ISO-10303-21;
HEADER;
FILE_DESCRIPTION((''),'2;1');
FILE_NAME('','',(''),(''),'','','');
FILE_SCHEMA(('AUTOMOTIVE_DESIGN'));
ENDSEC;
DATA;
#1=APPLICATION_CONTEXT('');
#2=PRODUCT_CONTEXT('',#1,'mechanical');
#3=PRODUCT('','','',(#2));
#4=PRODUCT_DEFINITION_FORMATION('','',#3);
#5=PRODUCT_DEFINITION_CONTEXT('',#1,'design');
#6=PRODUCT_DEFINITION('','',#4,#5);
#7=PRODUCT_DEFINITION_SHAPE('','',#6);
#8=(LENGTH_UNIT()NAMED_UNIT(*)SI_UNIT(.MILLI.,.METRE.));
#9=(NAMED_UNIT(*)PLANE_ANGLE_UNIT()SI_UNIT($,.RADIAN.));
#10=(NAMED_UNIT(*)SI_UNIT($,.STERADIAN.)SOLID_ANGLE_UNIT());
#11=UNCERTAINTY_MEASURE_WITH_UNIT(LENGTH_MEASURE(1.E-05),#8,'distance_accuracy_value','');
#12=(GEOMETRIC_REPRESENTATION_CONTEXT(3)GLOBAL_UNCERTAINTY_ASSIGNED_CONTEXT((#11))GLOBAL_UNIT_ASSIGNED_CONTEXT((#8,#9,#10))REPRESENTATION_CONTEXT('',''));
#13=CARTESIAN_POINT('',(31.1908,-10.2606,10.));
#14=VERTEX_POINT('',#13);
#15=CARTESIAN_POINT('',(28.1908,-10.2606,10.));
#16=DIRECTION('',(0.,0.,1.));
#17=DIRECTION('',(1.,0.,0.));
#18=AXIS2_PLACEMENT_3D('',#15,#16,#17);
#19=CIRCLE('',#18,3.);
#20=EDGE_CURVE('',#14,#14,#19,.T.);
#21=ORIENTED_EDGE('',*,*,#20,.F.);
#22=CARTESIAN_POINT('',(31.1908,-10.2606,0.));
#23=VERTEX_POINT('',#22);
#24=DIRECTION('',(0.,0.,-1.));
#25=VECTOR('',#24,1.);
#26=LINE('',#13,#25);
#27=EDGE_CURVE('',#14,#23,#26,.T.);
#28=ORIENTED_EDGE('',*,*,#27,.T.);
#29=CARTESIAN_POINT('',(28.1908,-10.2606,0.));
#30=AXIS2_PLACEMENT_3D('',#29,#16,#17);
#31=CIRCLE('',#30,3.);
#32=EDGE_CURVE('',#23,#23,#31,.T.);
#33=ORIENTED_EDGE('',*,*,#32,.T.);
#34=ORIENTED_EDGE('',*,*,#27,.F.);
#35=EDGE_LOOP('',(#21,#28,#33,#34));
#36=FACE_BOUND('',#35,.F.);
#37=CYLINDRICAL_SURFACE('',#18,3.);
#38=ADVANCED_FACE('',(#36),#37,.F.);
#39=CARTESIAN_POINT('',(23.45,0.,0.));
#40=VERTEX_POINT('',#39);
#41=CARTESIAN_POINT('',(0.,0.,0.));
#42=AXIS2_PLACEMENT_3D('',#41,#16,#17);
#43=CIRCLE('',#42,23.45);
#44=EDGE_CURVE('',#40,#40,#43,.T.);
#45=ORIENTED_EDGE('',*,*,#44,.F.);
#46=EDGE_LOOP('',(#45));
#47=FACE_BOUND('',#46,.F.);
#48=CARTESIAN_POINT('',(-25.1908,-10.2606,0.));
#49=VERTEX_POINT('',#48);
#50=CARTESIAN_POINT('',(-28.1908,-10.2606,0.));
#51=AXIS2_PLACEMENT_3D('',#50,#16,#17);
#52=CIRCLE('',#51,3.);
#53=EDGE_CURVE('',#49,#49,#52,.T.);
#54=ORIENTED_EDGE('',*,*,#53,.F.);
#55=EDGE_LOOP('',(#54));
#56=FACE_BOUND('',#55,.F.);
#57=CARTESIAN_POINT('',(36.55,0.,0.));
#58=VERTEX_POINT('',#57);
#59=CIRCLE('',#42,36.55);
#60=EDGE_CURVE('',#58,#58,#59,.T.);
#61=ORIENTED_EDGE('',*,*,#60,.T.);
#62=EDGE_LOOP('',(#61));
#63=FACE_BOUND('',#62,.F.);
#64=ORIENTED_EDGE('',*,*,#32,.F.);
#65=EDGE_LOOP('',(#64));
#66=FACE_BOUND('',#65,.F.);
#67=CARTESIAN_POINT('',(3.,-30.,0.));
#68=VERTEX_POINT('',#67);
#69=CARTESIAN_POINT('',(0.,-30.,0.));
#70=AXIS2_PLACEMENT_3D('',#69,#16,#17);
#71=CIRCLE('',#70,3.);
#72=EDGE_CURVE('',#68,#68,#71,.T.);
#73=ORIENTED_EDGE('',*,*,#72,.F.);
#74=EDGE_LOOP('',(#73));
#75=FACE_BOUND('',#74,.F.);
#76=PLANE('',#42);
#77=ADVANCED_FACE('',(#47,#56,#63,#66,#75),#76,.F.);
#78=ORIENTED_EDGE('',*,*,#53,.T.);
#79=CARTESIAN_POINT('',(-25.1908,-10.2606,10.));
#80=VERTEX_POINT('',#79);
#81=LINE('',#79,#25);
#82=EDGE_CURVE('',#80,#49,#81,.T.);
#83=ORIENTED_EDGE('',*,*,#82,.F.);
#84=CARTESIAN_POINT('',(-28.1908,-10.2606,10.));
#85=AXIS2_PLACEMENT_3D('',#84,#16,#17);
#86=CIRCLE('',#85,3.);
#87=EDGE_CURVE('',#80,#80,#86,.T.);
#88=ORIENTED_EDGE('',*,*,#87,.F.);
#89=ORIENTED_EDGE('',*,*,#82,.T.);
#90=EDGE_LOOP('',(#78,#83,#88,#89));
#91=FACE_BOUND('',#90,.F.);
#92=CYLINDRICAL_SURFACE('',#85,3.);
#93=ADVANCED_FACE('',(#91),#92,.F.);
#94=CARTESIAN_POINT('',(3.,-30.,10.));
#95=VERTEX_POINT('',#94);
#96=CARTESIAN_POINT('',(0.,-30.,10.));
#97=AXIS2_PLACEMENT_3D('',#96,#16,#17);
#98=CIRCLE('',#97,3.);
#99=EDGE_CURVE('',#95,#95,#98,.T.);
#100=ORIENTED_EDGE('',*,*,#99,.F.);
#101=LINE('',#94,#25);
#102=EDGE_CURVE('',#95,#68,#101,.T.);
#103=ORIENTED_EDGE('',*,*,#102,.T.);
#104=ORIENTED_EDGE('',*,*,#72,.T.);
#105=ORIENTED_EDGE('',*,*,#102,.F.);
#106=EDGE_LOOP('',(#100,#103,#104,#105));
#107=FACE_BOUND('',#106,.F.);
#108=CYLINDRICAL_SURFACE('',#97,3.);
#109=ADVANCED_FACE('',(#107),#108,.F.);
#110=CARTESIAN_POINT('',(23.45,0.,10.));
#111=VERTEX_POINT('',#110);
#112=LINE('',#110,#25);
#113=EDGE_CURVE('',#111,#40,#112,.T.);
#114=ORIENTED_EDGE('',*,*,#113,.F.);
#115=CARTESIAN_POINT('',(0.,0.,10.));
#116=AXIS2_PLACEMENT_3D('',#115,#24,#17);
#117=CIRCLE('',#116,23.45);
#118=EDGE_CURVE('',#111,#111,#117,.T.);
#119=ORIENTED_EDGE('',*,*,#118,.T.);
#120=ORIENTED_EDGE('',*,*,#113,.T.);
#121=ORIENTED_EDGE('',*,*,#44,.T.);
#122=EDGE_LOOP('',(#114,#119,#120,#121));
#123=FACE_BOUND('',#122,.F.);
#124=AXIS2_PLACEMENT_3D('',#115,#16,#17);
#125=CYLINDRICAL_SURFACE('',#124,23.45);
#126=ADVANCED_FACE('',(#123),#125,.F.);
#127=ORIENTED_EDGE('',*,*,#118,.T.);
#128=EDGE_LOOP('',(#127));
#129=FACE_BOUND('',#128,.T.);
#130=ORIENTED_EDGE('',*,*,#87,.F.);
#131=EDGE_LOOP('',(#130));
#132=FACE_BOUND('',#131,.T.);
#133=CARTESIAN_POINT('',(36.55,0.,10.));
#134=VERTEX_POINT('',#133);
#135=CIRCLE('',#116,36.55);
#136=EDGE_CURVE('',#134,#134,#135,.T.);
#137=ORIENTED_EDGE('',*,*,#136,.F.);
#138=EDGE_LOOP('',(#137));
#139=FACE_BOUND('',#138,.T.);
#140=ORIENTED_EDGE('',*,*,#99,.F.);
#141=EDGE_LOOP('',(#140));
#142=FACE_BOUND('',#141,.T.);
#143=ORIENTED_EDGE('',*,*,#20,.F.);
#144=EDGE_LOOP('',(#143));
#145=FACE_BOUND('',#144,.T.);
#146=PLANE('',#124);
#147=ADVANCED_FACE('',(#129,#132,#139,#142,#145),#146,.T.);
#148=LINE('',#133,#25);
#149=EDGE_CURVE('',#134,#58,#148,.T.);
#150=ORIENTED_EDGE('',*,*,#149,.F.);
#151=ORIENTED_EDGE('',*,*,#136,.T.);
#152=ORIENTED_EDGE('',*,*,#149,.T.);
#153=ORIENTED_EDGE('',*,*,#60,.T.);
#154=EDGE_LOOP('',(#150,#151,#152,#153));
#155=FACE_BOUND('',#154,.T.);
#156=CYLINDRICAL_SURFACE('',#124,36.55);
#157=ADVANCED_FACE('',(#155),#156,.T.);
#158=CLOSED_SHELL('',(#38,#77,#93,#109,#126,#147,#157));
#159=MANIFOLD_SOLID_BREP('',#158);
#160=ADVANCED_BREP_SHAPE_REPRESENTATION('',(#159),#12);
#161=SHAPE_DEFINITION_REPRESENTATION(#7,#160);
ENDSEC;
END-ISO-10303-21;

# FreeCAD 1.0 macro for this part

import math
import FreeCAD as App
import Part
import Sketcher


def edges_at(feature, points):
    """Names of the edges that pass closest to the given points."""
    edges = feature.Shape.Edges
    near = lambda p: min(range(len(edges)), key=lambda i: edges[i].distToShape(Part.Vertex(*p))[0])
    return sorted({f"Edge{near(p) + 1}" for p in points})

doc = App.newDocument("Part")
body = doc.addObject("PartDesign::Body", "Body")

# Sketch on XY plane
sketch1 = body.newObject("Sketcher::SketchObject", "Sketch")
sketch1.AttachmentSupport = (doc.getObject("XY_Plane"), [""])
sketch1.MapMode = "FlatFace"
sketch1.addGeometry(Part.ArcOfCircle(Part.Circle(App.Vector(0, 0, 0), App.Vector(0, 0, 1), 23.45), math.radians(180), math.radians(360)), False)
sketch1.addGeometry(Part.LineSegment(App.Vector(-23.45, 0, 0), App.Vector(-36.55, 0, 0)), False)
sketch1.addGeometry(Part.ArcOfCircle(Part.Circle(App.Vector(0, 0, 0), App.Vector(0, 0, 1), 36.55), math.radians(180), math.radians(360)), False)
sketch1.addGeometry(Part.LineSegment(App.Vector(36.55, 0, 0), App.Vector(23.45, 0, 0)), False)
sketch1.addGeometry(Part.Circle(App.Vector(0, -30, 0), App.Vector(0, 0, 1), 2.55), False)
sketch1.addGeometry(Part.Circle(App.Vector(-28.1908, -10.2606, 0), App.Vector(0, 0, 1), 2.55), False)
sketch1.addGeometry(Part.Circle(App.Vector(28.1908, -10.2606, 0), App.Vector(0, 0, 1), 2.55), False)
sketch1.addConstraint(Sketcher.Constraint("Coincident", 0, 1, 1, 1))
sketch1.addConstraint(Sketcher.Constraint("Coincident", 1, 2, 2, 1))
sketch1.addConstraint(Sketcher.Constraint("Coincident", 2, 2, 3, 1))
sketch1.addConstraint(Sketcher.Constraint("Coincident", 3, 2, 0, 2))
sketch1.addConstraint(Sketcher.Constraint("Horizontal", 1))
sketch1.addConstraint(Sketcher.Constraint("Horizontal", 3))
sketch1.addConstraint(Sketcher.Constraint("Coincident", 0, 3, -1, 1))
sketch1.addConstraint(Sketcher.Constraint("Coincident", 2, 3, -1, 1))
sketch1.addConstraint(Sketcher.Constraint("Equal", 4, 5))
sketch1.addConstraint(Sketcher.Constraint("Equal", 5, 6))
sketch1.addConstraint(Sketcher.Constraint("Symmetric", 5, 3, 6, 3, -2))
sketch1.addConstraint(Sketcher.Constraint("PointOnObject", 4, 3, -2))
sketch1.addConstraint(Sketcher.Constraint("PointOnObject", 0, 1, -1))
sketch1.addConstraint(Sketcher.Constraint("PointOnObject", 2, 2, -1))
sketch1.addConstraint(Sketcher.Constraint("Diameter", 4, 5.1))
sketch1.addConstraint(Sketcher.Constraint("Radius", 0, 23.45))
sketch1.addConstraint(Sketcher.Constraint("Radius", 2, 36.55))
sketch1.addConstraint(Sketcher.Constraint("DistanceY", 4, 3, -1, 1, 30.0))
sketch1.addConstraint(Sketcher.Constraint("DistanceX", 5, 3, -1, 1, 28.1908))
sketch1.addConstraint(Sketcher.Constraint("DistanceY", 5, 3, -1, 1, 10.2606))
pad1 = body.newObject("PartDesign::Pad", "Pad")
pad1.Profile = sketch1
pad1.Length = 10
doc.recompute()

fillet = body.newObject("PartDesign::Fillet", "Fillet")
fillet.Base = (pad1, edges_at(pad1, [
    (36.55, 0, 5),
    (23.45, 0, 5),
    (-23.45, 0, 5),
    (-36.55, 0, 5),
]))
fillet.Radius = 2

# Sketch on XY plane
sketch2 = body.newObject("Sketcher::SketchObject", "Sketch001")
sketch2.AttachmentSupport = (doc.getObject("XY_Plane"), [""])
sketch2.MapMode = "FlatFace"
sketch2.AttachmentOffset = App.Placement(App.Vector(0, 0, 10), App.Rotation())
sketch2.addGeometry(Part.Circle(App.Vector(0, 0, 0), App.Vector(0, 0, 1), 36.55), False)
sketch2.addGeometry(Part.Circle(App.Vector(-28.1908, -10.2606, 0), App.Vector(0, 0, 1), 2.55), False)
sketch2.addGeometry(Part.Circle(App.Vector(0, -30, 0), App.Vector(0, 0, 1), 2.55), False)
sketch2.addGeometry(Part.Circle(App.Vector(28.1908, -10.2606, 0), App.Vector(0, 0, 1), 2.55), False)
sketch2.addGeometry(Part.Circle(App.Vector(0, 0, 0), App.Vector(0, 0, 1), 23.45), False)
sketch2.addConstraint(Sketcher.Constraint("Coincident", 0, 3, -1, 1))
sketch2.addConstraint(Sketcher.Constraint("Coincident", 4, 3, -1, 1))
sketch2.addConstraint(Sketcher.Constraint("Equal", 1, 2))
sketch2.addConstraint(Sketcher.Constraint("Equal", 2, 3))
sketch2.addConstraint(Sketcher.Constraint("Symmetric", 1, 3, 3, 3, -2))
sketch2.addConstraint(Sketcher.Constraint("PointOnObject", 2, 3, -2))
sketch2.addConstraint(Sketcher.Constraint("Diameter", 0, 73.1))
sketch2.addConstraint(Sketcher.Constraint("Diameter", 1, 5.1))
sketch2.addConstraint(Sketcher.Constraint("Diameter", 4, 46.9))
sketch2.addConstraint(Sketcher.Constraint("DistanceY", 2, 3, -1, 1, 30.0))
sketch2.addConstraint(Sketcher.Constraint("DistanceX", 1, 3, -1, 1, 28.1908))
sketch2.addConstraint(Sketcher.Constraint("DistanceY", 1, 3, -1, 1, 10.2606))
pad2 = body.newObject("PartDesign::Pad", "Pad001")
pad2.Profile = sketch2
pad2.Length = 10
pad2.Reversed = True

# Sketch on XY plane
sketch3 = body.newObject("Sketcher::SketchObject", "Sketch002")
sketch3.AttachmentSupport = (doc.getObject("XY_Plane"), [""])
sketch3.MapMode = "FlatFace"
sketch3.AttachmentOffset = App.Placement(App.Vector(0, 0, 10), App.Rotation())
sketch3.addGeometry(Part.Circle(App.Vector(-28.1908, -10.2606, 0), App.Vector(0, 0, 1), 3), False)
sketch3.addGeometry(Part.Circle(App.Vector(-28.1908, -10.2606, 0), App.Vector(0, 0, 1), 2.55), False)
sketch3.addGeometry(Part.Circle(App.Vector(0, -30, 0), App.Vector(0, 0, 1), 3), False)
sketch3.addGeometry(Part.Circle(App.Vector(0, -30, 0), App.Vector(0, 0, 1), 2.55), False)
sketch3.addGeometry(Part.Circle(App.Vector(28.1908, -10.2606, 0), App.Vector(0, 0, 1), 3), False)
sketch3.addGeometry(Part.Circle(App.Vector(28.1908, -10.2606, 0), App.Vector(0, 0, 1), 2.55), False)
sketch3.addConstraint(Sketcher.Constraint("Coincident", 1, 3, 0, 3))
sketch3.addConstraint(Sketcher.Constraint("Coincident", 3, 3, 2, 3))
sketch3.addConstraint(Sketcher.Constraint("Coincident", 5, 3, 4, 3))
sketch3.addConstraint(Sketcher.Constraint("Equal", 0, 2))
sketch3.addConstraint(Sketcher.Constraint("Equal", 1, 3))
sketch3.addConstraint(Sketcher.Constraint("Equal", 2, 4))
sketch3.addConstraint(Sketcher.Constraint("Equal", 3, 5))
sketch3.addConstraint(Sketcher.Constraint("Symmetric", 0, 3, 4, 3, -2))
sketch3.addConstraint(Sketcher.Constraint("PointOnObject", 2, 3, -2))
sketch3.addConstraint(Sketcher.Constraint("Diameter", 0, 6.0))
sketch3.addConstraint(Sketcher.Constraint("Diameter", 1, 5.1))
sketch3.addConstraint(Sketcher.Constraint("DistanceY", 2, 3, -1, 1, 30.0))
sketch3.addConstraint(Sketcher.Constraint("DistanceX", 0, 3, -1, 1, 28.1908))
sketch3.addConstraint(Sketcher.Constraint("DistanceY", 0, 3, -1, 1, 10.2606))
pocket1 = body.newObject("PartDesign::Pocket", "Pocket")
pocket1.Profile = sketch3
pocket1.Type = "ThroughAll"

doc.recompute()
